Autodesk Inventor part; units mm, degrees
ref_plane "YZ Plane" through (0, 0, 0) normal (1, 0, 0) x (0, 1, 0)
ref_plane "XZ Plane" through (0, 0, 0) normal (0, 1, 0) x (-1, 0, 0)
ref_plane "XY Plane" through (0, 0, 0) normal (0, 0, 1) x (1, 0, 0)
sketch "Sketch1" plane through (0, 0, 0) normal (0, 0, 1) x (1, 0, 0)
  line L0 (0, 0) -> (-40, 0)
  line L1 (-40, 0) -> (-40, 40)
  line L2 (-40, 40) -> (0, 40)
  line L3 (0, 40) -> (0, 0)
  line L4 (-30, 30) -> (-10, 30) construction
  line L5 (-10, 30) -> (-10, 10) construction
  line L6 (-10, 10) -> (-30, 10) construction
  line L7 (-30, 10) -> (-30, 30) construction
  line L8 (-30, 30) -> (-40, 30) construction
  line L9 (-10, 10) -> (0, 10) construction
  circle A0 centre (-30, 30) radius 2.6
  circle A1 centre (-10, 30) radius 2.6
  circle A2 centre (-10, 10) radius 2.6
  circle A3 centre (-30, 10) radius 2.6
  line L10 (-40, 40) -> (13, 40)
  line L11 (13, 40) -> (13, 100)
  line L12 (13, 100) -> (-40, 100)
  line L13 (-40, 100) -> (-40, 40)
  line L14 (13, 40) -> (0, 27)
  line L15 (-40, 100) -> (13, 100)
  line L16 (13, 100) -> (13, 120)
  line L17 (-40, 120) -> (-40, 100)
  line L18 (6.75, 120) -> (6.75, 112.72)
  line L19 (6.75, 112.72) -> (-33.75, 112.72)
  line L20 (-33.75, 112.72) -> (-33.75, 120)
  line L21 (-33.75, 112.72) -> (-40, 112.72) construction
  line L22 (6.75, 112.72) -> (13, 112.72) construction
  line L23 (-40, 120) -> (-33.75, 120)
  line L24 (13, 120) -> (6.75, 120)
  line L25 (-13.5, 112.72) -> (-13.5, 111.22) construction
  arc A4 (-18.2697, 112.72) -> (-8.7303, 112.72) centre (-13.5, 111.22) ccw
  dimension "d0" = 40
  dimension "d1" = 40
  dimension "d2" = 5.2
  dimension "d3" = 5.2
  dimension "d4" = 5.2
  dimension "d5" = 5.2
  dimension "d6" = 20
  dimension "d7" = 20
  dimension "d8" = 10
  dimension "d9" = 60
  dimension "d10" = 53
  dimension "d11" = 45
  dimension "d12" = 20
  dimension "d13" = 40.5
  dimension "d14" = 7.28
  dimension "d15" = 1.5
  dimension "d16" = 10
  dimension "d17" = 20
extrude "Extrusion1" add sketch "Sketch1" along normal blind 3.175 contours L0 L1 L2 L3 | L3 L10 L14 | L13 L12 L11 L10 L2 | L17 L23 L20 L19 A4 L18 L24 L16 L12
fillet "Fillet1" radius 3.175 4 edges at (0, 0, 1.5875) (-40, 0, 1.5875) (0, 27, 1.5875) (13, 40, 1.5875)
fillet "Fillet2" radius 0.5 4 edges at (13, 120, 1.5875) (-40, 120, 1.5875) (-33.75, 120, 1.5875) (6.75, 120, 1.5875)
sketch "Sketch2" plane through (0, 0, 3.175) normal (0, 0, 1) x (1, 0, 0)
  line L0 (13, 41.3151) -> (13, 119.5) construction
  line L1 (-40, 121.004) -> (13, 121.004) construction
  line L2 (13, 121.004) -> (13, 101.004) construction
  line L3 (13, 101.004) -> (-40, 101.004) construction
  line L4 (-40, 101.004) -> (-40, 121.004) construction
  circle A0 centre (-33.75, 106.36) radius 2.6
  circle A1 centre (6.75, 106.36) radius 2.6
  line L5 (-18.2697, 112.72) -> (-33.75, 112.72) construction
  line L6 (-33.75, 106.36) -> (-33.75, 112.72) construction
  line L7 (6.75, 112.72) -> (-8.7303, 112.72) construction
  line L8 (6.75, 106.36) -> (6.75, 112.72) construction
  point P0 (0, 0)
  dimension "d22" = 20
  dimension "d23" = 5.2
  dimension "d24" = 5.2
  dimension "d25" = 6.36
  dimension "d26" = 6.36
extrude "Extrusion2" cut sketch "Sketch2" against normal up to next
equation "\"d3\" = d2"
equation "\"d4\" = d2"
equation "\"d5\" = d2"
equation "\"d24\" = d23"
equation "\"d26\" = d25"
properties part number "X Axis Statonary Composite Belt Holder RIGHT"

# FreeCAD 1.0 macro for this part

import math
import FreeCAD as App
import Part
import Sketcher
from FreeCAD import Vector
Q = App.Units.Quantity


def edges_at(feature, points):
    """Names of the edges that pass closest to the given points."""
    edges = feature.Shape.Edges
    near = lambda p: min(range(len(edges)), key=lambda i: edges[i].distToShape(Part.Vertex(*p))[0])
    return sorted({f"Edge{near(p) + 1}" for p in points})

doc = App.newDocument("Part")
body = doc.addObject("PartDesign::Body", "Body")

# Sketch on XY plane
sketch1 = body.newObject("Sketcher::SketchObject", "Sketch")
sketch1.AttachmentSupport = (doc.getObject("XY_Plane"), [""])
sketch1.MapMode = "FlatFace"
sketch1.addGeometry(Part.LineSegment(Vector(-40, 0, 0), Vector(0, 0, 0)), False)
sketch1.addGeometry(Part.LineSegment(Vector(0, 0, 0), Vector(0, 27, 0)), False)
sketch1.addGeometry(Part.LineSegment(Vector(0, 27, 0), Vector(13, 40, 0)), False)
sketch1.addGeometry(Part.LineSegment(Vector(13, 40, 0), Vector(13, 120, 0)), False)
sketch1.addGeometry(Part.LineSegment(Vector(13, 120, 0), Vector(6.8, 120, 0)), False)
sketch1.addGeometry(Part.LineSegment(Vector(6.8, 120, 0), Vector(6.8, 112.7, 0)), False)
sketch1.addGeometry(Part.LineSegment(Vector(6.8, 112.7, 0), Vector(-8.7, 112.7, 0)), False)
sketch1.addGeometry(Part.ArcOfCircle(Part.Circle(Vector(-13.5, 111.2, 0), Vector(0, 0, 1), 5), math.radians(163), math.radians(377)), False)
sketch1.addGeometry(Part.LineSegment(Vector(-18.3, 112.7, 0), Vector(-33.8, 112.7, 0)), False)
sketch1.addGeometry(Part.LineSegment(Vector(-33.8, 112.7, 0), Vector(-33.8, 120, 0)), False)
sketch1.addGeometry(Part.LineSegment(Vector(-33.8, 120, 0), Vector(-40, 120, 0)), False)
sketch1.addGeometry(Part.LineSegment(Vector(-40, 120, 0), Vector(-40, 0, 0)), False)
sketch1.addGeometry(Part.Circle(Vector(-30, 10, 0), Vector(0, 0, 1), 2.6), False)
sketch1.addGeometry(Part.Circle(Vector(-30, 30, 0), Vector(0, 0, 1), 2.6), False)
sketch1.addGeometry(Part.Circle(Vector(-10, 10, 0), Vector(0, 0, 1), 2.6), False)
sketch1.addGeometry(Part.Circle(Vector(-10, 30, 0), Vector(0, 0, 1), 2.6), False)
sketch1.addConstraint(Sketcher.Constraint("Coincident", 0, 2, 1, 1))
sketch1.addConstraint(Sketcher.Constraint("Coincident", 1, 2, 2, 1))
sketch1.addConstraint(Sketcher.Constraint("Coincident", 2, 2, 3, 1))
sketch1.addConstraint(Sketcher.Constraint("Coincident", 3, 2, 4, 1))
sketch1.addConstraint(Sketcher.Constraint("Coincident", 4, 2, 5, 1))
sketch1.addConstraint(Sketcher.Constraint("Coincident", 5, 2, 6, 1))
sketch1.addConstraint(Sketcher.Constraint("Coincident", 6, 2, 7, 2))
sketch1.addConstraint(Sketcher.Constraint("Coincident", 7, 1, 8, 1))
sketch1.addConstraint(Sketcher.Constraint("Coincident", 8, 2, 9, 1))
sketch1.addConstraint(Sketcher.Constraint("Coincident", 9, 2, 10, 1))
sketch1.addConstraint(Sketcher.Constraint("Coincident", 10, 2, 11, 1))
sketch1.addConstraint(Sketcher.Constraint("Coincident", 11, 2, 0, 1))
sketch1.addConstraint(Sketcher.Constraint("Horizontal", 0))
sketch1.addConstraint(Sketcher.Constraint("Vertical", 1))
sketch1.addConstraint(Sketcher.Constraint("Vertical", 3))
sketch1.addConstraint(Sketcher.Constraint("Horizontal", 4))
sketch1.addConstraint(Sketcher.Constraint("Vertical", 5))
sketch1.addConstraint(Sketcher.Constraint("Horizontal", 6))
sketch1.addConstraint(Sketcher.Constraint("Horizontal", 8))
sketch1.addConstraint(Sketcher.Constraint("Vertical", 9))
sketch1.addConstraint(Sketcher.Constraint("Horizontal", 10))
sketch1.addConstraint(Sketcher.Constraint("Vertical", 11))
sketch1.addConstraint(Sketcher.Constraint("Coincident", 0, 2, -1, 1))
sketch1.addConstraint(Sketcher.Constraint("Equal", 12, 13))
sketch1.addConstraint(Sketcher.Constraint("Equal", 13, 14))
sketch1.addConstraint(Sketcher.Constraint("Equal", 14, 15))
sketch1.addConstraint(Sketcher.Constraint("Horizontal", 12, 3, 14, 3))
sketch1.addConstraint(Sketcher.Constraint("Horizontal", 13, 3, 15, 3))
sketch1.addConstraint(Sketcher.Constraint("Horizontal", 6, 2, 7, 1))
sketch1.addConstraint(Sketcher.Constraint("Horizontal", 4, 2, 9, 2))
sketch1.addConstraint(Sketcher.Constraint("Vertical", 12, 3, 13, 3))
sketch1.addConstraint(Sketcher.Constraint("Vertical", 14, 3, 15, 3))
sketch1.addConstraint(Sketcher.Constraint("Equal", 6, 8))
sketch1.addConstraint(Sketcher.Constraint("Equal", 4, 10))
sketch1.addConstraint(Sketcher.Constraint("Radius", 7, 5.0))
sketch1.addConstraint(Sketcher.Constraint("Diameter", 12, 5.2))
sketch1.addConstraint(Sketcher.Constraint("DistanceX", 0, 1, 0, 2, 40.0))
sketch1.addConstraint(Sketcher.Constraint("Angle", 2, Q("45 deg")))
sketch1.addConstraint(Sketcher.Constraint("DistanceY", -1, 1, 12, 3, 10.0))
sketch1.addConstraint(Sketcher.Constraint("DistanceX", 14, 3, -1, 1, 10.0))
sketch1.addConstraint(Sketcher.Constraint("DistanceY", -1, 1, 2, 2, 40.0))
sketch1.addConstraint(Sketcher.Constraint("DistanceY", 12, 3, 13, 3, 20.0))
sketch1.addConstraint(Sketcher.Constraint("DistanceX", 12, 3, 14, 3, 20.0))
sketch1.addConstraint(Sketcher.Constraint("DistanceY", 5, 2, 5, 1, 7.28))
sketch1.addConstraint(Sketcher.Constraint("DistanceY", 7, 3, 5, 2, 1.5))
sketch1.addConstraint(Sketcher.Constraint("DistanceX", 8, 2, 5, 2, 40.5))
sketch1.addConstraint(Sketcher.Constraint("DistanceY", 1, 1, 1, 2, 27.0))
sketch1.addConstraint(Sketcher.Constraint("DistanceY", 3, 1, 3, 2, 80.0))
pad1 = body.newObject("PartDesign::Pad", "Pad")
pad1.Profile = sketch1
pad1.Length = 3.175
doc.recompute()

fillet = body.newObject("PartDesign::Fillet", "Fillet")
fillet.Base = (pad1, edges_at(pad1, [
    (0, 0, 1.587),
    (-40, 0, 1.587),
    (0, 27, 1.587),
    (13, 40, 1.587),
]))
fillet.Radius = 3.175
doc.recompute()

fillet2 = body.newObject("PartDesign::Fillet", "Fillet001")
fillet2.Base = (fillet, edges_at(fillet, [
    (13, 120, 1.587),
    (-40, 120, 1.587),
    (-33.75, 120, 1.587),
    (6.75, 120, 1.587),
]))
fillet2.Radius = 0.5

# Sketch on XY plane
sketch2 = body.newObject("Sketcher::SketchObject", "Sketch001")
sketch2.AttachmentSupport = (doc.getObject("XY_Plane"), [""])
sketch2.MapMode = "FlatFace"
sketch2.AttachmentOffset = App.Placement(Vector(0, 0, 3.175), App.Rotation())
sketch2.addGeometry(Part.Circle(Vector(-33.8, 106.4, 0), Vector(0, 0, 1), 2.6), False)
sketch2.addGeometry(Part.Circle(Vector(6.8, 106.4, 0), Vector(0, 0, 1), 2.6), False)
sketch2.addConstraint(Sketcher.Constraint("Equal", 0, 1))
sketch2.addConstraint(Sketcher.Constraint("Horizontal", 0, 3, 1, 3))
sketch2.addConstraint(Sketcher.Constraint("Diameter", 0, 5.2))
sketch2.addConstraint(Sketcher.Constraint("DistanceX", 0, 3, 1, 3, 40.5))
sketch2.addConstraint(Sketcher.Constraint("DistanceX", 0, 3, -1, 1, 33.75))
sketch2.addConstraint(Sketcher.Constraint("DistanceY", -1, 1, 0, 3, 106.36))
pocket1 = body.newObject("PartDesign::Pocket", "Pocket")
pocket1.Profile = sketch2
pocket1.Length = 3.175

doc.recompute()
